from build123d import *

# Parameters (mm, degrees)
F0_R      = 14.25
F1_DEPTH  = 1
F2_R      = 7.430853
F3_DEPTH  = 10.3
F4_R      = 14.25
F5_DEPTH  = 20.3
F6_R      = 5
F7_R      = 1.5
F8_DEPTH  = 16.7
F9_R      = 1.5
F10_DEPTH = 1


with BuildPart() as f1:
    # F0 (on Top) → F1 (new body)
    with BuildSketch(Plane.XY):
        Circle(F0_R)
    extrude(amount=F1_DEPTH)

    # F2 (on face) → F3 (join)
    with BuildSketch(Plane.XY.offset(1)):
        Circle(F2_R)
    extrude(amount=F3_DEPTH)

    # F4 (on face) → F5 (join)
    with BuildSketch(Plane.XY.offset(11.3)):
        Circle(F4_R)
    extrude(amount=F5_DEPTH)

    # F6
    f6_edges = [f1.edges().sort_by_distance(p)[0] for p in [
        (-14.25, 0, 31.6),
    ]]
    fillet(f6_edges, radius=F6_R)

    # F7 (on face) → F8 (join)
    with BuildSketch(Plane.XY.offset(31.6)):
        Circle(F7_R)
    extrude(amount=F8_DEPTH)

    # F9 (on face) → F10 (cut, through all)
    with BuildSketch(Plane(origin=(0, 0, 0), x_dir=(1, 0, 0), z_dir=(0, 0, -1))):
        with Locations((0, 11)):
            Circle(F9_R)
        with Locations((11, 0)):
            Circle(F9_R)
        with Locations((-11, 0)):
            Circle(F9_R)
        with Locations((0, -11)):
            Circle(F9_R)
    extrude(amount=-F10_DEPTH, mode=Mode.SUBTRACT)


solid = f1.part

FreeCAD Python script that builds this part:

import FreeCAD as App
import Part
import Sketcher

V = App.Vector
Q = App.Units.Quantity


def edges_at(feature, points):
    """Names of the edges that pass closest to the given points."""
    edges = feature.Shape.Edges
    near = lambda p: min(range(len(edges)), key=lambda i: edges[i].distToShape(Part.Vertex(*p))[0])
    return sorted({f"Edge{near(p) + 1}" for p in points})

doc = App.newDocument("Part")
body = doc.addObject("PartDesign::Body", "Body")

# Sketch on XY plane
sketch1 = doc.addObject("Sketcher::SketchObject", "Sketch")
body.addObject(sketch1)
sketch1.AttachmentSupport = (doc.XY_Plane, [""])
sketch1.MapMode = "FlatFace"
sketch1.addGeometry(Part.Circle(V(0, 0, 0), V(0, 0, 1), 14.25), False)
sketch1.addConstraint(Sketcher.Constraint("Coincident", 0, 3, -1, 1))
sketch1.addConstraint(Sketcher.Constraint("Diameter", 0, Q("28.5 mm")))
pad1 = doc.addObject("PartDesign::Pad", "Pad")
body.addObject(pad1)
pad1.Profile = sketch1
pad1.Length = 1

# Sketch on XY plane
sketch2 = doc.addObject("Sketcher::SketchObject", "Sketch001")
body.addObject(sketch2)
sketch2.AttachmentSupport = (doc.XY_Plane, [""])
sketch2.MapMode = "FlatFace"
sketch2.AttachmentOffset = App.Placement(V(0, 0, 1), App.Rotation())
sketch2.addGeometry(Part.Circle(V(0, 0, 0), V(0, 0, 1), 7.430853), False)
sketch2.addConstraint(Sketcher.Constraint("Coincident", 0, 3, -1, 1))
sketch2.addConstraint(Sketcher.Constraint("Diameter", 0, Q("14.861706 mm")))
pad2 = doc.addObject("PartDesign::Pad", "Pad001")
body.addObject(pad2)
pad2.Profile = sketch2
pad2.Length = 10.3

# Sketch on XY plane
sketch3 = doc.addObject("Sketcher::SketchObject", "Sketch002")
body.addObject(sketch3)
sketch3.AttachmentSupport = (doc.XY_Plane, [""])
sketch3.MapMode = "FlatFace"
sketch3.AttachmentOffset = App.Placement(V(0, 0, 11.3), App.Rotation())
sketch3.addGeometry(Part.Circle(V(0, 0, 0), V(0, 0, 1), 14.25), False)
sketch3.addConstraint(Sketcher.Constraint("Coincident", 0, 3, -1, 1))
sketch3.addConstraint(Sketcher.Constraint("Diameter", 0, Q("28.5 mm")))
pad3 = doc.addObject("PartDesign::Pad", "Pad002")
body.addObject(pad3)
pad3.Profile = sketch3
pad3.Length = 20.3
doc.recompute()

fillet = doc.addObject("PartDesign::Fillet", "Fillet")
body.addObject(fillet)
fillet.Base = (pad3, edges_at(pad3, [(-14.25, 0, 31.6)]))
fillet.Radius = 5

# Sketch on XY plane
sketch4 = doc.addObject("Sketcher::SketchObject", "Sketch003")
body.addObject(sketch4)
sketch4.AttachmentSupport = (doc.XY_Plane, [""])
sketch4.MapMode = "FlatFace"
sketch4.AttachmentOffset = App.Placement(V(0, 0, 31.6), App.Rotation())
sketch4.addGeometry(Part.Circle(V(0, 0, 0), V(0, 0, 1), 1.5), False)
sketch4.addConstraint(Sketcher.Constraint("Coincident", 0, 3, -1, 1))
sketch4.addConstraint(Sketcher.Constraint("Diameter", 0, Q("3 mm")))
pad4 = doc.addObject("PartDesign::Pad", "Pad003")
body.addObject(pad4)
pad4.Profile = sketch4
pad4.Length = 16.7

# Sketch on XY plane
sketch5 = doc.addObject("Sketcher::SketchObject", "Sketch004")
body.addObject(sketch5)
sketch5.AttachmentSupport = (doc.XY_Plane, [""])
sketch5.MapMode = "FlatFace"
sketch5.addGeometry(Part.Circle(V(0, -11, 0), V(0, 0, 1), 1.5), False)
sketch5.addGeometry(Part.Circle(V(11, 0, 0), V(0, 0, 1), 1.5), False)
sketch5.addGeometry(Part.Circle(V(-11, 0, 0), V(0, 0, 1), 1.5), False)
sketch5.addGeometry(Part.Circle(V(0, 11, 0), V(0, 0, 1), 1.5), False)
sketch5.addConstraint(Sketcher.Constraint("Equal", 0, 1))
sketch5.addConstraint(Sketcher.Constraint("Equal", 1, 2))
sketch5.addConstraint(Sketcher.Constraint("Equal", 2, 3))
sketch5.addConstraint(Sketcher.Constraint("Symmetric", 1, 3, 2, 3, -1, 1))
sketch5.addConstraint(Sketcher.Constraint("Symmetric", 0, 3, 3, 3, -1, 1))
sketch5.addConstraint(Sketcher.Constraint("PointOnObject", 0, 3, -2))
sketch5.addConstraint(Sketcher.Constraint("PointOnObject", 1, 3, -1))
sketch5.addConstraint(Sketcher.Constraint("Diameter", 0, Q("3 mm")))
sketch5.addConstraint(Sketcher.Constraint("DistanceY", 0, 3, -1, 1, Q("11 mm")))
sketch5.addConstraint(Sketcher.Constraint("DistanceX", -1, 1, 1, 3, Q("11 mm")))
pocket1 = doc.addObject("PartDesign::Pocket", "Pocket")
body.addObject(pocket1)
pocket1.Profile = sketch5
pocket1.Length = 1
pocket1.Reversed = True

doc.recompute()
